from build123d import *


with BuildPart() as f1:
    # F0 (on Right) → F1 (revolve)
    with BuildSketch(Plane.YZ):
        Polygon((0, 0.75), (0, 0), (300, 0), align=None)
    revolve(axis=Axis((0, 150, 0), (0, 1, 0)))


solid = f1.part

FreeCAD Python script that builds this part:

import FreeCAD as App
import Part
import Sketcher

doc = App.newDocument("Part")
params = doc.addObject("Spreadsheet::Sheet", "Params")
for row, (alias, value) in enumerate([
    ("sketch1_width", "300 mm"),
    ("sketch1_height", "0.75 mm"),
    ("revolution_angle", "360 deg"),
], start=1):
    params.set(f"A{row}", alias)
    params.set(f"B{row}", "=" + value)
    params.setAlias(f"B{row}", alias)

body = doc.addObject("PartDesign::Body", "Body")

# Sketch on YZ plane
sketch1 = body.newObject("Sketcher::SketchObject", "Sketch")
sketch1.AttachmentSupport = (doc.getObject("YZ_Plane"), [""])
sketch1.MapMode = "FlatFace"
sketch1.addGeometry(Part.LineSegment(App.Vector(0, 0.8, 0), App.Vector(0, 0, 0)), False)
sketch1.addGeometry(Part.LineSegment(App.Vector(0, 0, 0), App.Vector(300, 0, 0)), False)
sketch1.addGeometry(Part.LineSegment(App.Vector(300, 0, 0), App.Vector(0, 0.8, 0)), False)
sketch1.addConstraint(Sketcher.Constraint("Coincident", 0, 2, 1, 1))
sketch1.addConstraint(Sketcher.Constraint("Coincident", 1, 2, 2, 1))
sketch1.addConstraint(Sketcher.Constraint("Coincident", 2, 2, 0, 1))
sketch1.addConstraint(Sketcher.Constraint("Vertical", 0))
sketch1.addConstraint(Sketcher.Constraint("Horizontal", 1))
sketch1.addConstraint(Sketcher.Constraint("Coincident", 0, 2, -1, 1))
sketch1.addConstraint(Sketcher.Constraint("DistanceX", 1, 1, 1, 2, 300.0))
sketch1.addConstraint(Sketcher.Constraint("DistanceY", 0, 2, 0, 1, 0.75))
sketch1.setExpression("Constraints[6]", "Params.sketch1_width")
sketch1.setExpression("Constraints[7]", "Params.sketch1_height")
revolution = body.newObject("PartDesign::Revolution", "Revolution")
revolution.Profile = sketch1
revolution.ReferenceAxis = (sketch1, ["H_Axis"])
revolution.setExpression("Angle", "Params.revolution_angle")

doc.recompute()
